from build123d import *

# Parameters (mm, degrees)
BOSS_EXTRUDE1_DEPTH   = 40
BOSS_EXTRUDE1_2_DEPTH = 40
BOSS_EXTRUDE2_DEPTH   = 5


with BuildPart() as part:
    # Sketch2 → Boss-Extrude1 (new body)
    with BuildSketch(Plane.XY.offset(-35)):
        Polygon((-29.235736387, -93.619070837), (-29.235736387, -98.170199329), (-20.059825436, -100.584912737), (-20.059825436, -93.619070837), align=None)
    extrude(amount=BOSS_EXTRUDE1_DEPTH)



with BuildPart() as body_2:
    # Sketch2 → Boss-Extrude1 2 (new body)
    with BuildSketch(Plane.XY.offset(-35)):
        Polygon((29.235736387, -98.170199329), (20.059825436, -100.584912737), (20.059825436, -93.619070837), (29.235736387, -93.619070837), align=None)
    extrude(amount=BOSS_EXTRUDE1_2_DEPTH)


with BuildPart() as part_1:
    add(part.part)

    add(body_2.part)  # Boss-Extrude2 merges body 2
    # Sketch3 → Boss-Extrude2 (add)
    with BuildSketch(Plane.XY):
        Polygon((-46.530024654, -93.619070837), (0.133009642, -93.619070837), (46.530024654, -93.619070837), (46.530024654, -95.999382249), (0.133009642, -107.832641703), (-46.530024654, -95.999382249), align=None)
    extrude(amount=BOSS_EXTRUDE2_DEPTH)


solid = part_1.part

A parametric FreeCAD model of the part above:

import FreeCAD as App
import Part
import Sketcher


def add_polygon(sketch, points):
    """Adds a closed chain of lines whose ends are joined by coincident constraints."""
    first, n = sketch.GeometryCount, len(points)
    for a, b in zip(points, points[1:] + points[:1]):
        sketch.addGeometry(Part.LineSegment(App.Vector(*a, 0), App.Vector(*b, 0)), False)
    for i in range(n):
        sketch.addConstraint(Sketcher.Constraint("Coincident", first + i, 2, first + (i + 1) % n, 1))

doc = App.newDocument("Part")
params = doc.addObject("Spreadsheet::Sheet", "Params")
for row, (alias, value) in enumerate([
    ("pad1_length", "40 mm"),
    ("pad2_length", "40 mm"),
    ("pad3_length", "5 mm"),
], start=1):
    params.set(f"A{row}", alias)
    params.set(f"B{row}", "=" + value)
    params.setAlias(f"B{row}", alias)

body = doc.addObject("PartDesign::Body", "Body")

# Sketch on XY plane
sketch1 = doc.addObject("Sketcher::SketchObject", "Sketch")
body.addObject(sketch1)
sketch1.AttachmentSupport = (doc.XY_Plane, [""])
sketch1.MapMode = "FlatFace"
sketch1.AttachmentOffset = App.Placement(App.Vector(0, 0, -35), App.Rotation())
add_polygon(sketch1, [(-29.2, -93.6), (-29.2, -98.2), (-20.1, -100.6), (-20.1, -93.6)])  # lines 0-3
sketch1.addConstraint([
    Sketcher.Constraint("Vertical", 0),
    Sketcher.Constraint("Vertical", 2),
    Sketcher.Constraint("Horizontal", 3),
    Sketcher.Constraint("DistanceX", 3, 2, 3, 1, 9.175911),
    Sketcher.Constraint("DistanceY", 0, 2, 0, 1, 4.551128),
    Sketcher.Constraint("DistanceY", 2, 1, 2, 2, 6.965842),
    Sketcher.Constraint("DistanceY", 0, 2, -1, 1, 98.170199),
    Sketcher.Constraint("DistanceX", 0, 2, -1, 1, 29.235736),
])
pad1 = doc.addObject("PartDesign::Pad", "Pad")
body.addObject(pad1)
pad1.Profile = sketch1
pad1.setExpression("Length", "Params.pad1_length")
body2 = doc.addObject("PartDesign::Body", "Body001")

# Sketch on XY plane
sketch2 = doc.addObject("Sketcher::SketchObject", "Sketch001")
body2.addObject(sketch2)
sketch2.AttachmentSupport = (doc.getObject("XY_Plane001"), [""])
sketch2.MapMode = "FlatFace"
sketch2.AttachmentOffset = App.Placement(App.Vector(0, 0, -35), App.Rotation())
add_polygon(sketch2, [(20.1, -100.6), (29.2, -98.2), (29.2, -93.6), (20.1, -93.6)])  # lines 0-3
sketch2.addConstraint([
    Sketcher.Constraint("Vertical", 1),
    Sketcher.Constraint("Horizontal", 2),
    Sketcher.Constraint("Vertical", 3),
    Sketcher.Constraint("DistanceX", 2, 2, 2, 1, 9.175911),
    Sketcher.Constraint("DistanceY", 1, 1, 1, 2, 4.551128),
    Sketcher.Constraint("DistanceY", 3, 2, 3, 1, 6.965842),
    Sketcher.Constraint("DistanceY", 0, 2, -1, 1, 98.170199),
    Sketcher.Constraint("DistanceX", -1, 1, 0, 2, 29.235736),
])
pad2 = doc.addObject("PartDesign::Pad", "Pad001")
body2.addObject(pad2)
pad2.Profile = sketch2
pad2.setExpression("Length", "Params.pad2_length")
body.AllowCompound = True
doc.recompute()

boolean = doc.addObject("PartDesign::Boolean", "Boolean")
body.addObject(boolean)
boolean.Type = "Fuse"
boolean.addObjects([body2])

# Sketch on XY plane
sketch3 = doc.addObject("Sketcher::SketchObject", "Sketch002")
body.addObject(sketch3)
sketch3.AttachmentSupport = (doc.XY_Plane, [""])
sketch3.MapMode = "FlatFace"
add_polygon(sketch3, [(46.5, -93.6), (-46.5, -93.6), (-46.5, -96), (0.1, -107.8), (46.5, -96)])  # lines 0-4
sketch3.addConstraint([
    Sketcher.Constraint("Horizontal", 0),
    Sketcher.Constraint("Vertical", 1),
    Sketcher.Constraint("Vertical", 4),
    Sketcher.Constraint("Symmetric", 1, 2, 3, 2, -2),
    Sketcher.Constraint("DistanceX", 0, 2, 0, 1, 93.060049),
    Sketcher.Constraint("DistanceY", 1, 2, 1, 1, 2.380311),
    Sketcher.Constraint("Distance", 3, 47.882241),
    Sketcher.Constraint("DistanceY", 0, 2, -1, 1, 93.619071),
    Sketcher.Constraint("DistanceX", -1, 1, 2, 2, 0.13301),
])
pad3 = doc.addObject("PartDesign::Pad", "Pad002")
body.addObject(pad3)
pad3.Profile = sketch3
pad3.setExpression("Length", "Params.pad3_length")

doc.recompute()
